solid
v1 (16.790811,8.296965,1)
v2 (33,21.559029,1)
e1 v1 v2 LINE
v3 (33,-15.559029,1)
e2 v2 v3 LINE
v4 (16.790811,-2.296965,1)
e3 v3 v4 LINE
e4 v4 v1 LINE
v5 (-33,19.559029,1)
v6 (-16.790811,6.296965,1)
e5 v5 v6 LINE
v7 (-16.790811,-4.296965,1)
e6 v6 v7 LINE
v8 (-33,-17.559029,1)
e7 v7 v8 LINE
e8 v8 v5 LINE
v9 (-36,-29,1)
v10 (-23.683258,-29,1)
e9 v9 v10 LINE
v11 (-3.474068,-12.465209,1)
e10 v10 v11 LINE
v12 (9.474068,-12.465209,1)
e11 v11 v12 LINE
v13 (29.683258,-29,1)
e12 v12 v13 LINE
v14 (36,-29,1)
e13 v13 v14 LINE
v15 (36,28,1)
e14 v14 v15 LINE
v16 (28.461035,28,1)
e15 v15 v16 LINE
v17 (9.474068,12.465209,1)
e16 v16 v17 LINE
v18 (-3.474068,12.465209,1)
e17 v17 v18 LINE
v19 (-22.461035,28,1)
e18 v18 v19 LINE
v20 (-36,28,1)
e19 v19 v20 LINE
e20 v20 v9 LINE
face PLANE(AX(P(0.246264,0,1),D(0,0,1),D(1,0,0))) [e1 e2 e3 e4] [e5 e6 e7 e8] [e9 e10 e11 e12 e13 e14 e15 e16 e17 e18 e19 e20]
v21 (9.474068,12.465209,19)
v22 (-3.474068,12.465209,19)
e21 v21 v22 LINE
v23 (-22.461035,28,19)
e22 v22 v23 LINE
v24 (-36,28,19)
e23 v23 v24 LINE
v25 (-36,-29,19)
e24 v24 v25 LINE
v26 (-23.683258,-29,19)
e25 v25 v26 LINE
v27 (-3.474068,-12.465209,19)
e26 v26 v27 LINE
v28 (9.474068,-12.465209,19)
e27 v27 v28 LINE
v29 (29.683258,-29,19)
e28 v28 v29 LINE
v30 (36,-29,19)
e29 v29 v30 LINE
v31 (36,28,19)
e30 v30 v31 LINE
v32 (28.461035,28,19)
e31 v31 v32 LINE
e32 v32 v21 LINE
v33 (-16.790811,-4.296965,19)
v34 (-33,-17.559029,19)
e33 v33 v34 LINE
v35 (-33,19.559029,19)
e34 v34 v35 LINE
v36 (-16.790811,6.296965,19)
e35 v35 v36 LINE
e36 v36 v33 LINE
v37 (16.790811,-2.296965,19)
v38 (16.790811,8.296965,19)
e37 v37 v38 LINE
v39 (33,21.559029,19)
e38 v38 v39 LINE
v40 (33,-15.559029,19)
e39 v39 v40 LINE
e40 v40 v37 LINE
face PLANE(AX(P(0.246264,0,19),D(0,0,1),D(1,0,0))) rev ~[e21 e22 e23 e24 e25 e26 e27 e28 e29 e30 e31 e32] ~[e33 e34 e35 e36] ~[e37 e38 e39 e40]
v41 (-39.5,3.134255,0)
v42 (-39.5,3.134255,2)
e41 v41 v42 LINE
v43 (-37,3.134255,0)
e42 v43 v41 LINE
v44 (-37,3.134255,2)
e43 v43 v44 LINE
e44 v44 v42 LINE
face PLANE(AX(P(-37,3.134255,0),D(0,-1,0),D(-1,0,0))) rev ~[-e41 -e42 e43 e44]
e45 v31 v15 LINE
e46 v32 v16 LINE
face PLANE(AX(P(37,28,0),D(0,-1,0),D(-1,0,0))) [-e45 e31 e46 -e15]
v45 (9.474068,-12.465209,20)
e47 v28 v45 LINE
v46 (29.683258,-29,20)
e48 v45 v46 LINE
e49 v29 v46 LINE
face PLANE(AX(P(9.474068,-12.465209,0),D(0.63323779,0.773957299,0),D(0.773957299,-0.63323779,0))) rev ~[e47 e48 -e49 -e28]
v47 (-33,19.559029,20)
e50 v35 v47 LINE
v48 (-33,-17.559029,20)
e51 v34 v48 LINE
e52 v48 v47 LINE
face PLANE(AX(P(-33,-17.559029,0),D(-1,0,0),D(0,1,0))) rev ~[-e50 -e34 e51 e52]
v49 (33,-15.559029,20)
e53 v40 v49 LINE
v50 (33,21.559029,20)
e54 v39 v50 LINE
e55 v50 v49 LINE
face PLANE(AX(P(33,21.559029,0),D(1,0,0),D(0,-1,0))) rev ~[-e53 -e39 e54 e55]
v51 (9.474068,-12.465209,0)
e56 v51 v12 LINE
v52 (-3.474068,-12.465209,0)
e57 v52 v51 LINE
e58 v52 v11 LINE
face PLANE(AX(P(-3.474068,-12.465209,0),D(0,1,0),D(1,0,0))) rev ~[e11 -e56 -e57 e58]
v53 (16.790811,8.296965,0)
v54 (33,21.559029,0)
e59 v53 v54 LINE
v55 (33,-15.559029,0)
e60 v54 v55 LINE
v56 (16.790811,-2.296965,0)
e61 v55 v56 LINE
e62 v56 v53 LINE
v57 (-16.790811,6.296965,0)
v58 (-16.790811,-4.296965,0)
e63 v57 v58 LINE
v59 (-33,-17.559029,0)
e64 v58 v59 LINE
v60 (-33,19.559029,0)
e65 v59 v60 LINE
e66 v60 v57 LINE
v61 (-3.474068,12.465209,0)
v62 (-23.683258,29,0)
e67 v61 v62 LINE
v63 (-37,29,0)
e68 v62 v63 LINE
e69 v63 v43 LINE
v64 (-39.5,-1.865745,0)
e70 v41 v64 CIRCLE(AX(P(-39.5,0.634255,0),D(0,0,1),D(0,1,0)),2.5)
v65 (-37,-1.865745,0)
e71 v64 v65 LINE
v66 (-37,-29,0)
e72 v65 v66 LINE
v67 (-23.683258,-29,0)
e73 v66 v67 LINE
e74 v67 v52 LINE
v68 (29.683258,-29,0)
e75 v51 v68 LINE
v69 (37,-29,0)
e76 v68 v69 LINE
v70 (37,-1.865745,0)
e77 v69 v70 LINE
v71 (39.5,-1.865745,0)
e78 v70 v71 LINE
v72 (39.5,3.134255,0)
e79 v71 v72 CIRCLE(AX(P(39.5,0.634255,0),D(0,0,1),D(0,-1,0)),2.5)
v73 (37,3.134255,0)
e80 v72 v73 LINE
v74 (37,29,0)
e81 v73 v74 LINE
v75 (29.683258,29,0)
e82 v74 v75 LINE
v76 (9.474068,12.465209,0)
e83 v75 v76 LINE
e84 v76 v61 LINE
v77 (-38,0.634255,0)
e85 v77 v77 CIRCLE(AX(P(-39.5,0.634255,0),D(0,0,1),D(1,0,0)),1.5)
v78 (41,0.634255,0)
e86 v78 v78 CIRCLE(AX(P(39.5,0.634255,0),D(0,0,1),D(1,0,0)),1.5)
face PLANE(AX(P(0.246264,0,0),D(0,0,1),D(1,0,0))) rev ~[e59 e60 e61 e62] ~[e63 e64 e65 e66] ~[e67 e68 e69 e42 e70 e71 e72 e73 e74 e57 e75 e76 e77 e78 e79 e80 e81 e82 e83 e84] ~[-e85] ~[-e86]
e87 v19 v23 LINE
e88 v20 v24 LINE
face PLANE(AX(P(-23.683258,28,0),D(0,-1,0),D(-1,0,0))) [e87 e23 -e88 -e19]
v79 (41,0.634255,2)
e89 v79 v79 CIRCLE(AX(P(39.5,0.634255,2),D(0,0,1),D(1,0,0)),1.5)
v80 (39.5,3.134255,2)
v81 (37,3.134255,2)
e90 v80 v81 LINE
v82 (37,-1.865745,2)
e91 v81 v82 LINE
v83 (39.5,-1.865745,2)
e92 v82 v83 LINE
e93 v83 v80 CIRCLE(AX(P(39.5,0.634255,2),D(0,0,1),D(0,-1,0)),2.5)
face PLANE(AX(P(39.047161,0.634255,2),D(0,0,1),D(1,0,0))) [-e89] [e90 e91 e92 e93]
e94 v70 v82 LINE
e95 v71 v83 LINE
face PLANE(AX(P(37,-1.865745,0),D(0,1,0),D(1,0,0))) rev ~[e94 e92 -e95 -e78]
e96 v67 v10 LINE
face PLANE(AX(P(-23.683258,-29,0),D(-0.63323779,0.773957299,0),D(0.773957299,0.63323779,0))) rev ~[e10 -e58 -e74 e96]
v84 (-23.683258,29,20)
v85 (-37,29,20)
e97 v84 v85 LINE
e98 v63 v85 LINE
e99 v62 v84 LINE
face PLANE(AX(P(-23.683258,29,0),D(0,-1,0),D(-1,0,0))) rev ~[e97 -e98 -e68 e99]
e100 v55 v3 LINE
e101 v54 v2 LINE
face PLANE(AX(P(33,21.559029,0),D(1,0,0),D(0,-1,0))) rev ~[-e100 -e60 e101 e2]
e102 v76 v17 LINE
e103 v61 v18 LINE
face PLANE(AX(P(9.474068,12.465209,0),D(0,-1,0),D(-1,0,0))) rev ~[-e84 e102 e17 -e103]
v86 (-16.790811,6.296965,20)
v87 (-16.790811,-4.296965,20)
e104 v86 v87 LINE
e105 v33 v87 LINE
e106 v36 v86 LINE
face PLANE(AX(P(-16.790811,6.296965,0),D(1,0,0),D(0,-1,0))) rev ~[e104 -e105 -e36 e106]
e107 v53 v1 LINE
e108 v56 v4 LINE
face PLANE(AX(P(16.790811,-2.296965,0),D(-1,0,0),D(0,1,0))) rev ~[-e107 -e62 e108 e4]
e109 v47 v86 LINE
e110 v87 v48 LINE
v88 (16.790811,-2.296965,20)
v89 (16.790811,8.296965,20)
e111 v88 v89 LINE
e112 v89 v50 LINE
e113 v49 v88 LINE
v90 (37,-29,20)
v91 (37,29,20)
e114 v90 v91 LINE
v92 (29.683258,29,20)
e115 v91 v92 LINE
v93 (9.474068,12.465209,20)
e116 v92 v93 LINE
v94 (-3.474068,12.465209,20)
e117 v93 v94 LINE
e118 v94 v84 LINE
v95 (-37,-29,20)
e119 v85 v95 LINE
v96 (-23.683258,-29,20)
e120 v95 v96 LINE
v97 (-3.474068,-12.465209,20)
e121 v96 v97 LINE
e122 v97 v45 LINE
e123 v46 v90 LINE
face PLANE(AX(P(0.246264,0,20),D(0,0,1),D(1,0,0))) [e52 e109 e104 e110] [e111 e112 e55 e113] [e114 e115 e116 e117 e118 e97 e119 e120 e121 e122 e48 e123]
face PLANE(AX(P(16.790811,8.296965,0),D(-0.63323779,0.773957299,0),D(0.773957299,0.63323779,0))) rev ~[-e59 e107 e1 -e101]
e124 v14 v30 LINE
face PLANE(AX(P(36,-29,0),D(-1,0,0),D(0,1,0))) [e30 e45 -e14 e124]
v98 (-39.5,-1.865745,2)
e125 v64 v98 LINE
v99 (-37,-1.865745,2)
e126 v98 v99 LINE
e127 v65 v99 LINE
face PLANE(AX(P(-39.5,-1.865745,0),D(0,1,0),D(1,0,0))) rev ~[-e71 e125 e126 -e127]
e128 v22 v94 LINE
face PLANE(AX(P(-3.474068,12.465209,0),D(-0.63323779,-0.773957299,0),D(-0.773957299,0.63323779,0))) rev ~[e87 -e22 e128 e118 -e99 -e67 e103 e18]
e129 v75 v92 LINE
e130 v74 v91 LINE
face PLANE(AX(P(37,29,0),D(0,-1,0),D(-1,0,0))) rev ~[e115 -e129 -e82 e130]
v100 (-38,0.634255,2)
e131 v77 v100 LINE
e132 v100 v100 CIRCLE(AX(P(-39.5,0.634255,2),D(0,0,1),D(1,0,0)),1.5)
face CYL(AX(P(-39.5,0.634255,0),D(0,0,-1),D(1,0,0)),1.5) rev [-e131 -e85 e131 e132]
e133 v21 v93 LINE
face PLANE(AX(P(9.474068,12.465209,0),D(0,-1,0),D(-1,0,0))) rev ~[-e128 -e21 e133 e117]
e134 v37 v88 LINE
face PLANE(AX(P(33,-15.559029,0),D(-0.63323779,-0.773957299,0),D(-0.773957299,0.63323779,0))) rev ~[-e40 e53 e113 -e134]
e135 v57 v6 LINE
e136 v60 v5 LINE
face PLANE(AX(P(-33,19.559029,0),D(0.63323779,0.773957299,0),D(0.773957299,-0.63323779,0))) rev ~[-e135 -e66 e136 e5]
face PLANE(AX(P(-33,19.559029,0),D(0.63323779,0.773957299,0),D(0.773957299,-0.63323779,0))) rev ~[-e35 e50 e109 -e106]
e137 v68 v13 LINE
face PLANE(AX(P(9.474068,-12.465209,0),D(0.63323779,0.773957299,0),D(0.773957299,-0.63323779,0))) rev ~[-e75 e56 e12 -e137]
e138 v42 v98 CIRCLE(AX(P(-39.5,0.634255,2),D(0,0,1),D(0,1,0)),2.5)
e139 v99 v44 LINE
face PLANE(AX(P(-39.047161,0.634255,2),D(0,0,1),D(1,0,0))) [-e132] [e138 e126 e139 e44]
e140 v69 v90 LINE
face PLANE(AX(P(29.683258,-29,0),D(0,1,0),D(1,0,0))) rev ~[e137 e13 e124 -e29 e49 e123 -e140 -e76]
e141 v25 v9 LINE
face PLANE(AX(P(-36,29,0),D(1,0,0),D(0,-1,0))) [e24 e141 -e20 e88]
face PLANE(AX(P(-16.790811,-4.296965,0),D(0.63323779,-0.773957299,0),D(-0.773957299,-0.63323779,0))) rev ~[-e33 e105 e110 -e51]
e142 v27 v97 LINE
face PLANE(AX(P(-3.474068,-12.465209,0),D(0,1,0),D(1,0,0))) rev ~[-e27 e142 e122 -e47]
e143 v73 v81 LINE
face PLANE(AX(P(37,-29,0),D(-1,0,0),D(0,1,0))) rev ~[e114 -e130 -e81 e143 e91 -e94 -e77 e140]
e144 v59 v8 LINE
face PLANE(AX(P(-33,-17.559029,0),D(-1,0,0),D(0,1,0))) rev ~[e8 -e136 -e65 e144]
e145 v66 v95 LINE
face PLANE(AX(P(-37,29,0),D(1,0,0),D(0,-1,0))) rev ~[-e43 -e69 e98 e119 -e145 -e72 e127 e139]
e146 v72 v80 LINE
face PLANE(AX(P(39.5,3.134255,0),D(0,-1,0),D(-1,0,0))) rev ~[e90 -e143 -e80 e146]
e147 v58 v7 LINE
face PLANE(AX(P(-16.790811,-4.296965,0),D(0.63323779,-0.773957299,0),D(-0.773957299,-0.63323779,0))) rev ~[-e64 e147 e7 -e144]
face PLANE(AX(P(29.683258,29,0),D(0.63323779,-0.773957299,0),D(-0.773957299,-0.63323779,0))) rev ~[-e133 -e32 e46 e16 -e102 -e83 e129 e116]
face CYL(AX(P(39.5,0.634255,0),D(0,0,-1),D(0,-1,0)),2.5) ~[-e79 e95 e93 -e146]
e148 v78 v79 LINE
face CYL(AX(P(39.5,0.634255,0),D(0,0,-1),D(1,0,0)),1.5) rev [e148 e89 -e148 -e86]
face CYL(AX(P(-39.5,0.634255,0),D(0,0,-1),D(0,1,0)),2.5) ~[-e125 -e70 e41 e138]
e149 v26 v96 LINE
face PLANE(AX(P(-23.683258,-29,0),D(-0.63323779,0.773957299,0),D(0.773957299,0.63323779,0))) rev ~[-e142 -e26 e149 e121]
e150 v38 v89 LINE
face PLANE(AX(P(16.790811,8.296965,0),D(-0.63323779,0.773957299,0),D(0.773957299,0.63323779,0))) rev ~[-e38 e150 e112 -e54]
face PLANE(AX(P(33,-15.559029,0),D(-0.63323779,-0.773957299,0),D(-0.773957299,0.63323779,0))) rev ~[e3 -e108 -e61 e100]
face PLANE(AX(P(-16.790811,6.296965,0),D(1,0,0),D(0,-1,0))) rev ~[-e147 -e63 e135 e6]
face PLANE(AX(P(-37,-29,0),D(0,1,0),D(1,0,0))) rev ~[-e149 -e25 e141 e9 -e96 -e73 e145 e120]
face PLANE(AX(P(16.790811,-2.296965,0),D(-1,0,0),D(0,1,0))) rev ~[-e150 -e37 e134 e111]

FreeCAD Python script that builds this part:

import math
import FreeCAD as App
import Part
import Sketcher


def faces_at(feature, points):
    """Names of the faces that lie closest to the given points."""
    faces = feature.Shape.Faces
    near = lambda p: min(range(len(faces)), key=lambda i: faces[i].distToShape(Part.Vertex(*p))[0])
    return sorted({f"Face{near(p) + 1}" for p in points})

doc = App.newDocument("Part")
body = doc.addObject("PartDesign::Body", "Body")

sketch1 = body.newObject("Sketcher::SketchObject", "Sketch")
sketch1.AttachmentSupport = (doc.getObject("XY_Plane"), [""])
sketch1.MapMode = "FlatFace"
sketch1.addGeometry(Part.LineSegment(App.Vector(-3, 12, 0), App.Vector(-24, 29, 0)), False)
sketch1.addGeometry(Part.LineSegment(App.Vector(-24, 29, 0), App.Vector(-37, 29, 0)), False)
sketch1.addGeometry(Part.LineSegment(App.Vector(-37, 29, 0), App.Vector(-37, -29, 0)), False)
sketch1.addGeometry(Part.LineSegment(App.Vector(-37, -29, 0), App.Vector(-24, -29, 0)), False)
sketch1.addGeometry(Part.LineSegment(App.Vector(-24, -29, 0), App.Vector(-3, -12, 0)), False)
sketch1.addGeometry(Part.LineSegment(App.Vector(-3, -12, 0), App.Vector(9, -12, 0)), False)
sketch1.addGeometry(Part.LineSegment(App.Vector(9, -12, 0), App.Vector(30, -29, 0)), False)
sketch1.addGeometry(Part.LineSegment(App.Vector(30, -29, 0), App.Vector(37, -29, 0)), False)
sketch1.addGeometry(Part.LineSegment(App.Vector(37, -29, 0), App.Vector(37, 29, 0)), False)
sketch1.addGeometry(Part.LineSegment(App.Vector(37, 29, 0), App.Vector(30, 29, 0)), False)
sketch1.addGeometry(Part.LineSegment(App.Vector(30, 29, 0), App.Vector(9, 12, 0)), False)
sketch1.addGeometry(Part.LineSegment(App.Vector(9, 12, 0), App.Vector(-3, 12, 0)), False)
sketch1.addGeometry(Part.LineSegment(App.Vector(-33, -18, 0), App.Vector(-33, 20, 0)), False)
sketch1.addGeometry(Part.LineSegment(App.Vector(-33, 20, 0), App.Vector(-17, 6, 0)), False)
sketch1.addGeometry(Part.LineSegment(App.Vector(-17, 6, 0), App.Vector(-17, -4, 0)), False)
sketch1.addGeometry(Part.LineSegment(App.Vector(-17, -4, 0), App.Vector(-33, -18, 0)), False)
sketch1.addGeometry(Part.LineSegment(App.Vector(17, -2, 0), App.Vector(17, 8, 0)), False)
sketch1.addGeometry(Part.LineSegment(App.Vector(17, 8, 0), App.Vector(33, 22, 0)), False)
sketch1.addGeometry(Part.LineSegment(App.Vector(33, 22, 0), App.Vector(33, -16, 0)), False)
sketch1.addGeometry(Part.LineSegment(App.Vector(33, -16, 0), App.Vector(17, -2, 0)), False)
sketch1.addConstraint(Sketcher.Constraint("Coincident", 0, 2, 1, 1))
sketch1.addConstraint(Sketcher.Constraint("Coincident", 1, 2, 2, 1))
sketch1.addConstraint(Sketcher.Constraint("Coincident", 2, 2, 3, 1))
sketch1.addConstraint(Sketcher.Constraint("Coincident", 3, 2, 4, 1))
sketch1.addConstraint(Sketcher.Constraint("Coincident", 4, 2, 5, 1))
sketch1.addConstraint(Sketcher.Constraint("Coincident", 5, 2, 6, 1))
sketch1.addConstraint(Sketcher.Constraint("Coincident", 6, 2, 7, 1))
sketch1.addConstraint(Sketcher.Constraint("Coincident", 7, 2, 8, 1))
sketch1.addConstraint(Sketcher.Constraint("Coincident", 8, 2, 9, 1))
sketch1.addConstraint(Sketcher.Constraint("Coincident", 9, 2, 10, 1))
sketch1.addConstraint(Sketcher.Constraint("Coincident", 10, 2, 11, 1))
sketch1.addConstraint(Sketcher.Constraint("Coincident", 11, 2, 0, 1))
sketch1.addConstraint(Sketcher.Constraint("Coincident", 12, 2, 13, 1))
sketch1.addConstraint(Sketcher.Constraint("Coincident", 13, 2, 14, 1))
sketch1.addConstraint(Sketcher.Constraint("Coincident", 14, 2, 15, 1))
sketch1.addConstraint(Sketcher.Constraint("Coincident", 15, 2, 12, 1))
sketch1.addConstraint(Sketcher.Constraint("Coincident", 16, 2, 17, 1))
sketch1.addConstraint(Sketcher.Constraint("Coincident", 17, 2, 18, 1))
sketch1.addConstraint(Sketcher.Constraint("Coincident", 18, 2, 19, 1))
sketch1.addConstraint(Sketcher.Constraint("Coincident", 19, 2, 16, 1))
sketch1.addConstraint(Sketcher.Constraint("Horizontal", 1))
sketch1.addConstraint(Sketcher.Constraint("Vertical", 2))
sketch1.addConstraint(Sketcher.Constraint("Horizontal", 3))
sketch1.addConstraint(Sketcher.Constraint("Horizontal", 5))
sketch1.addConstraint(Sketcher.Constraint("Horizontal", 7))
sketch1.addConstraint(Sketcher.Constraint("Vertical", 8))
sketch1.addConstraint(Sketcher.Constraint("Horizontal", 9))
sketch1.addConstraint(Sketcher.Constraint("Horizontal", 11))
sketch1.addConstraint(Sketcher.Constraint("Vertical", 12))
sketch1.addConstraint(Sketcher.Constraint("Vertical", 14))
sketch1.addConstraint(Sketcher.Constraint("Vertical", 16))
sketch1.addConstraint(Sketcher.Constraint("Vertical", 18))
sketch1.addConstraint(Sketcher.Constraint("Symmetric", 1, 2, 7, 2, -1, 1))
sketch1.addConstraint(Sketcher.Constraint("Symmetric", 0, 2, 3, 2, -1))
sketch1.addConstraint(Sketcher.Constraint("Symmetric", 6, 2, 9, 2, -1))
sketch1.addConstraint(Sketcher.Constraint("Symmetric", 5, 2, 10, 2, -1))
sketch1.addConstraint(Sketcher.Constraint("Parallel", 0, 6))
sketch1.addConstraint(Sketcher.Constraint("Parallel", 4, 10))
sketch1.addConstraint(Sketcher.Constraint("Parallel", 6, 13))
sketch1.addConstraint(Sketcher.Constraint("Parallel", 10, 15))
sketch1.addConstraint(Sketcher.Constraint("Parallel", 15, 17))
sketch1.addConstraint(Sketcher.Constraint("Parallel", 13, 19))
sketch1.addConstraint(Sketcher.Constraint("Equal", 14, 16))
sketch1.addConstraint(Sketcher.Constraint("Equal", 12, 18))
sketch1.addConstraint(Sketcher.Constraint("DistanceY", 2, 2, 2, 1, 58.0))
sketch1.addConstraint(Sketcher.Constraint("DistanceX", 1, 2, -1, 1, 37.0))
sketch1.addConstraint(Sketcher.Constraint("DistanceX", 12, 2, -1, 1, 33.0))
sketch1.addConstraint(Sketcher.Constraint("DistanceX", -1, 1, 17, 2, 33.0))
sketch1.addConstraint(Sketcher.Constraint("DistanceY", 14, 2, 14, 1, 10.59393))
sketch1.addConstraint(Sketcher.Constraint("Distance", 13, 20.94326))
sketch1.addConstraint(Sketcher.Constraint("DistanceX", 1, 2, 1, 1, 13.316742))
sketch1.addConstraint(Sketcher.Constraint("DistanceX", 5, 1, 5, 2, 12.948137))
sketch1.addConstraint(Sketcher.Constraint("DistanceX", 7, 1, 7, 2, 7.316742))
sketch1.addConstraint(Sketcher.Constraint("DistanceY", 12, 1, 12, 2, 37.118058))
sketch1.addConstraint(Sketcher.Constraint("DistanceY", -1, 1, 12, 2, 19.559029))
sketch1.addConstraint(Sketcher.Constraint("DistanceY", -1, 1, 17, 2, 21.559029))
pad1 = body.newObject("PartDesign::Pad", "Pad")
pad1.Profile = sketch1
pad1.Length = 20
doc.recompute()

thickness = body.newObject("PartDesign::Thickness", "Thickness")
thickness.Base = (pad1, faces_at(pad1, [
    (24.895, -8.928, 10),
    (33, 3, 10),
    (24.895, 14.928, 10),
    (16.791, 3, 10),
    (-16.791, 1, 10),
    (-24.895, 12.928, 10),
    (-33, 1, 10),
    (-24.895, -10.928, 10),
    (33.342, -29, 10),
    (19.579, -20.733, 10),
    (3, -12.465, 10),
    (-13.579, -20.733, 10),
    (-30.342, -29, 10),
    (-13.579, 20.733, 10),
    (3, 12.465, 10),
    (19.579, 20.733, 10),
]))
thickness.Value = 1
thickness.Reversed = True
thickness.Join = "Intersection"

sketch2 = body.newObject("Sketcher::SketchObject", "Sketch001")
sketch2.AttachmentSupport = (doc.getObject("XY_Plane"), [""])
sketch2.MapMode = "FlatFace"
sketch2.addGeometry(Part.LineSegment(App.Vector(-39.5, -1.9, 0), App.Vector(-37, -1.9, 0)), False)
sketch2.addGeometry(Part.LineSegment(App.Vector(-37, -1.9, 0), App.Vector(-37, 3.1, 0)), False)
sketch2.addGeometry(Part.LineSegment(App.Vector(-37, 3.1, 0), App.Vector(-39.5, 3.1, 0)), False)
sketch2.addGeometry(Part.ArcOfCircle(Part.Circle(App.Vector(-39.5, 0.6, 0), App.Vector(0, 0, 1), 2.5), math.radians(90), math.radians(270)), False)
sketch2.addGeometry(Part.Circle(App.Vector(-39.5, 0.6, 0), App.Vector(0, 0, 1), 1.5), False)
sketch2.addGeometry(Part.LineSegment(App.Vector(39.5, 3.1, 0), App.Vector(37, 3.1, 0)), False)
sketch2.addGeometry(Part.LineSegment(App.Vector(37, 3.1, 0), App.Vector(37, -1.9, 0)), False)
sketch2.addGeometry(Part.LineSegment(App.Vector(37, -1.9, 0), App.Vector(39.5, -1.9, 0)), False)
sketch2.addGeometry(Part.ArcOfCircle(Part.Circle(App.Vector(39.5, 0.6, 0), App.Vector(0, 0, 1), 2.5), math.radians(-90), math.radians(90)), False)
sketch2.addGeometry(Part.Circle(App.Vector(39.5, 0.6, 0), App.Vector(0, 0, 1), 1.5), False)
sketch2.addConstraint(Sketcher.Constraint("Coincident", 0, 2, 1, 1))
sketch2.addConstraint(Sketcher.Constraint("Coincident", 1, 2, 2, 1))
sketch2.addConstraint(Sketcher.Constraint("Tangent", 2, 2, 3, 1))
sketch2.addConstraint(Sketcher.Constraint("Tangent", 3, 2, 0, 1))
sketch2.addConstraint(Sketcher.Constraint("Coincident", 5, 2, 6, 1))
sketch2.addConstraint(Sketcher.Constraint("Coincident", 6, 2, 7, 1))
sketch2.addConstraint(Sketcher.Constraint("Tangent", 7, 2, 8, 1))
sketch2.addConstraint(Sketcher.Constraint("Tangent", 8, 2, 5, 1))
sketch2.addConstraint(Sketcher.Constraint("Horizontal", 0))
sketch2.addConstraint(Sketcher.Constraint("Vertical", 1))
sketch2.addConstraint(Sketcher.Constraint("Horizontal", 2))
sketch2.addConstraint(Sketcher.Constraint("Horizontal", 5))
sketch2.addConstraint(Sketcher.Constraint("Vertical", 6))
sketch2.addConstraint(Sketcher.Constraint("Horizontal", 7))
sketch2.addConstraint(Sketcher.Constraint("Coincident", 4, 3, 3, 3))
sketch2.addConstraint(Sketcher.Constraint("Coincident", 9, 3, 8, 3))
sketch2.addConstraint(Sketcher.Constraint("Equal", 3, 8))
sketch2.addConstraint(Sketcher.Constraint("Equal", 4, 9))
sketch2.addConstraint(Sketcher.Constraint("Symmetric", 3, 3, 8, 3, -2))
sketch2.addConstraint(Sketcher.Constraint("Equal", 2, 5))
sketch2.addConstraint(Sketcher.Constraint("Diameter", 4, 3.0))
sketch2.addConstraint(Sketcher.Constraint("Radius", 3, 2.5))
sketch2.addConstraint(Sketcher.Constraint("DistanceX", 0, 1, 0, 2, 2.5))
sketch2.addConstraint(Sketcher.Constraint("DistanceX", 0, 2, -1, 1, 37.0))
sketch2.addConstraint(Sketcher.Constraint("DistanceY", -1, 1, 3, 3, 0.634255))
pad2 = body.newObject("PartDesign::Pad", "Pad001")
pad2.Profile = sketch2
pad2.Length = 2

doc.recompute()
